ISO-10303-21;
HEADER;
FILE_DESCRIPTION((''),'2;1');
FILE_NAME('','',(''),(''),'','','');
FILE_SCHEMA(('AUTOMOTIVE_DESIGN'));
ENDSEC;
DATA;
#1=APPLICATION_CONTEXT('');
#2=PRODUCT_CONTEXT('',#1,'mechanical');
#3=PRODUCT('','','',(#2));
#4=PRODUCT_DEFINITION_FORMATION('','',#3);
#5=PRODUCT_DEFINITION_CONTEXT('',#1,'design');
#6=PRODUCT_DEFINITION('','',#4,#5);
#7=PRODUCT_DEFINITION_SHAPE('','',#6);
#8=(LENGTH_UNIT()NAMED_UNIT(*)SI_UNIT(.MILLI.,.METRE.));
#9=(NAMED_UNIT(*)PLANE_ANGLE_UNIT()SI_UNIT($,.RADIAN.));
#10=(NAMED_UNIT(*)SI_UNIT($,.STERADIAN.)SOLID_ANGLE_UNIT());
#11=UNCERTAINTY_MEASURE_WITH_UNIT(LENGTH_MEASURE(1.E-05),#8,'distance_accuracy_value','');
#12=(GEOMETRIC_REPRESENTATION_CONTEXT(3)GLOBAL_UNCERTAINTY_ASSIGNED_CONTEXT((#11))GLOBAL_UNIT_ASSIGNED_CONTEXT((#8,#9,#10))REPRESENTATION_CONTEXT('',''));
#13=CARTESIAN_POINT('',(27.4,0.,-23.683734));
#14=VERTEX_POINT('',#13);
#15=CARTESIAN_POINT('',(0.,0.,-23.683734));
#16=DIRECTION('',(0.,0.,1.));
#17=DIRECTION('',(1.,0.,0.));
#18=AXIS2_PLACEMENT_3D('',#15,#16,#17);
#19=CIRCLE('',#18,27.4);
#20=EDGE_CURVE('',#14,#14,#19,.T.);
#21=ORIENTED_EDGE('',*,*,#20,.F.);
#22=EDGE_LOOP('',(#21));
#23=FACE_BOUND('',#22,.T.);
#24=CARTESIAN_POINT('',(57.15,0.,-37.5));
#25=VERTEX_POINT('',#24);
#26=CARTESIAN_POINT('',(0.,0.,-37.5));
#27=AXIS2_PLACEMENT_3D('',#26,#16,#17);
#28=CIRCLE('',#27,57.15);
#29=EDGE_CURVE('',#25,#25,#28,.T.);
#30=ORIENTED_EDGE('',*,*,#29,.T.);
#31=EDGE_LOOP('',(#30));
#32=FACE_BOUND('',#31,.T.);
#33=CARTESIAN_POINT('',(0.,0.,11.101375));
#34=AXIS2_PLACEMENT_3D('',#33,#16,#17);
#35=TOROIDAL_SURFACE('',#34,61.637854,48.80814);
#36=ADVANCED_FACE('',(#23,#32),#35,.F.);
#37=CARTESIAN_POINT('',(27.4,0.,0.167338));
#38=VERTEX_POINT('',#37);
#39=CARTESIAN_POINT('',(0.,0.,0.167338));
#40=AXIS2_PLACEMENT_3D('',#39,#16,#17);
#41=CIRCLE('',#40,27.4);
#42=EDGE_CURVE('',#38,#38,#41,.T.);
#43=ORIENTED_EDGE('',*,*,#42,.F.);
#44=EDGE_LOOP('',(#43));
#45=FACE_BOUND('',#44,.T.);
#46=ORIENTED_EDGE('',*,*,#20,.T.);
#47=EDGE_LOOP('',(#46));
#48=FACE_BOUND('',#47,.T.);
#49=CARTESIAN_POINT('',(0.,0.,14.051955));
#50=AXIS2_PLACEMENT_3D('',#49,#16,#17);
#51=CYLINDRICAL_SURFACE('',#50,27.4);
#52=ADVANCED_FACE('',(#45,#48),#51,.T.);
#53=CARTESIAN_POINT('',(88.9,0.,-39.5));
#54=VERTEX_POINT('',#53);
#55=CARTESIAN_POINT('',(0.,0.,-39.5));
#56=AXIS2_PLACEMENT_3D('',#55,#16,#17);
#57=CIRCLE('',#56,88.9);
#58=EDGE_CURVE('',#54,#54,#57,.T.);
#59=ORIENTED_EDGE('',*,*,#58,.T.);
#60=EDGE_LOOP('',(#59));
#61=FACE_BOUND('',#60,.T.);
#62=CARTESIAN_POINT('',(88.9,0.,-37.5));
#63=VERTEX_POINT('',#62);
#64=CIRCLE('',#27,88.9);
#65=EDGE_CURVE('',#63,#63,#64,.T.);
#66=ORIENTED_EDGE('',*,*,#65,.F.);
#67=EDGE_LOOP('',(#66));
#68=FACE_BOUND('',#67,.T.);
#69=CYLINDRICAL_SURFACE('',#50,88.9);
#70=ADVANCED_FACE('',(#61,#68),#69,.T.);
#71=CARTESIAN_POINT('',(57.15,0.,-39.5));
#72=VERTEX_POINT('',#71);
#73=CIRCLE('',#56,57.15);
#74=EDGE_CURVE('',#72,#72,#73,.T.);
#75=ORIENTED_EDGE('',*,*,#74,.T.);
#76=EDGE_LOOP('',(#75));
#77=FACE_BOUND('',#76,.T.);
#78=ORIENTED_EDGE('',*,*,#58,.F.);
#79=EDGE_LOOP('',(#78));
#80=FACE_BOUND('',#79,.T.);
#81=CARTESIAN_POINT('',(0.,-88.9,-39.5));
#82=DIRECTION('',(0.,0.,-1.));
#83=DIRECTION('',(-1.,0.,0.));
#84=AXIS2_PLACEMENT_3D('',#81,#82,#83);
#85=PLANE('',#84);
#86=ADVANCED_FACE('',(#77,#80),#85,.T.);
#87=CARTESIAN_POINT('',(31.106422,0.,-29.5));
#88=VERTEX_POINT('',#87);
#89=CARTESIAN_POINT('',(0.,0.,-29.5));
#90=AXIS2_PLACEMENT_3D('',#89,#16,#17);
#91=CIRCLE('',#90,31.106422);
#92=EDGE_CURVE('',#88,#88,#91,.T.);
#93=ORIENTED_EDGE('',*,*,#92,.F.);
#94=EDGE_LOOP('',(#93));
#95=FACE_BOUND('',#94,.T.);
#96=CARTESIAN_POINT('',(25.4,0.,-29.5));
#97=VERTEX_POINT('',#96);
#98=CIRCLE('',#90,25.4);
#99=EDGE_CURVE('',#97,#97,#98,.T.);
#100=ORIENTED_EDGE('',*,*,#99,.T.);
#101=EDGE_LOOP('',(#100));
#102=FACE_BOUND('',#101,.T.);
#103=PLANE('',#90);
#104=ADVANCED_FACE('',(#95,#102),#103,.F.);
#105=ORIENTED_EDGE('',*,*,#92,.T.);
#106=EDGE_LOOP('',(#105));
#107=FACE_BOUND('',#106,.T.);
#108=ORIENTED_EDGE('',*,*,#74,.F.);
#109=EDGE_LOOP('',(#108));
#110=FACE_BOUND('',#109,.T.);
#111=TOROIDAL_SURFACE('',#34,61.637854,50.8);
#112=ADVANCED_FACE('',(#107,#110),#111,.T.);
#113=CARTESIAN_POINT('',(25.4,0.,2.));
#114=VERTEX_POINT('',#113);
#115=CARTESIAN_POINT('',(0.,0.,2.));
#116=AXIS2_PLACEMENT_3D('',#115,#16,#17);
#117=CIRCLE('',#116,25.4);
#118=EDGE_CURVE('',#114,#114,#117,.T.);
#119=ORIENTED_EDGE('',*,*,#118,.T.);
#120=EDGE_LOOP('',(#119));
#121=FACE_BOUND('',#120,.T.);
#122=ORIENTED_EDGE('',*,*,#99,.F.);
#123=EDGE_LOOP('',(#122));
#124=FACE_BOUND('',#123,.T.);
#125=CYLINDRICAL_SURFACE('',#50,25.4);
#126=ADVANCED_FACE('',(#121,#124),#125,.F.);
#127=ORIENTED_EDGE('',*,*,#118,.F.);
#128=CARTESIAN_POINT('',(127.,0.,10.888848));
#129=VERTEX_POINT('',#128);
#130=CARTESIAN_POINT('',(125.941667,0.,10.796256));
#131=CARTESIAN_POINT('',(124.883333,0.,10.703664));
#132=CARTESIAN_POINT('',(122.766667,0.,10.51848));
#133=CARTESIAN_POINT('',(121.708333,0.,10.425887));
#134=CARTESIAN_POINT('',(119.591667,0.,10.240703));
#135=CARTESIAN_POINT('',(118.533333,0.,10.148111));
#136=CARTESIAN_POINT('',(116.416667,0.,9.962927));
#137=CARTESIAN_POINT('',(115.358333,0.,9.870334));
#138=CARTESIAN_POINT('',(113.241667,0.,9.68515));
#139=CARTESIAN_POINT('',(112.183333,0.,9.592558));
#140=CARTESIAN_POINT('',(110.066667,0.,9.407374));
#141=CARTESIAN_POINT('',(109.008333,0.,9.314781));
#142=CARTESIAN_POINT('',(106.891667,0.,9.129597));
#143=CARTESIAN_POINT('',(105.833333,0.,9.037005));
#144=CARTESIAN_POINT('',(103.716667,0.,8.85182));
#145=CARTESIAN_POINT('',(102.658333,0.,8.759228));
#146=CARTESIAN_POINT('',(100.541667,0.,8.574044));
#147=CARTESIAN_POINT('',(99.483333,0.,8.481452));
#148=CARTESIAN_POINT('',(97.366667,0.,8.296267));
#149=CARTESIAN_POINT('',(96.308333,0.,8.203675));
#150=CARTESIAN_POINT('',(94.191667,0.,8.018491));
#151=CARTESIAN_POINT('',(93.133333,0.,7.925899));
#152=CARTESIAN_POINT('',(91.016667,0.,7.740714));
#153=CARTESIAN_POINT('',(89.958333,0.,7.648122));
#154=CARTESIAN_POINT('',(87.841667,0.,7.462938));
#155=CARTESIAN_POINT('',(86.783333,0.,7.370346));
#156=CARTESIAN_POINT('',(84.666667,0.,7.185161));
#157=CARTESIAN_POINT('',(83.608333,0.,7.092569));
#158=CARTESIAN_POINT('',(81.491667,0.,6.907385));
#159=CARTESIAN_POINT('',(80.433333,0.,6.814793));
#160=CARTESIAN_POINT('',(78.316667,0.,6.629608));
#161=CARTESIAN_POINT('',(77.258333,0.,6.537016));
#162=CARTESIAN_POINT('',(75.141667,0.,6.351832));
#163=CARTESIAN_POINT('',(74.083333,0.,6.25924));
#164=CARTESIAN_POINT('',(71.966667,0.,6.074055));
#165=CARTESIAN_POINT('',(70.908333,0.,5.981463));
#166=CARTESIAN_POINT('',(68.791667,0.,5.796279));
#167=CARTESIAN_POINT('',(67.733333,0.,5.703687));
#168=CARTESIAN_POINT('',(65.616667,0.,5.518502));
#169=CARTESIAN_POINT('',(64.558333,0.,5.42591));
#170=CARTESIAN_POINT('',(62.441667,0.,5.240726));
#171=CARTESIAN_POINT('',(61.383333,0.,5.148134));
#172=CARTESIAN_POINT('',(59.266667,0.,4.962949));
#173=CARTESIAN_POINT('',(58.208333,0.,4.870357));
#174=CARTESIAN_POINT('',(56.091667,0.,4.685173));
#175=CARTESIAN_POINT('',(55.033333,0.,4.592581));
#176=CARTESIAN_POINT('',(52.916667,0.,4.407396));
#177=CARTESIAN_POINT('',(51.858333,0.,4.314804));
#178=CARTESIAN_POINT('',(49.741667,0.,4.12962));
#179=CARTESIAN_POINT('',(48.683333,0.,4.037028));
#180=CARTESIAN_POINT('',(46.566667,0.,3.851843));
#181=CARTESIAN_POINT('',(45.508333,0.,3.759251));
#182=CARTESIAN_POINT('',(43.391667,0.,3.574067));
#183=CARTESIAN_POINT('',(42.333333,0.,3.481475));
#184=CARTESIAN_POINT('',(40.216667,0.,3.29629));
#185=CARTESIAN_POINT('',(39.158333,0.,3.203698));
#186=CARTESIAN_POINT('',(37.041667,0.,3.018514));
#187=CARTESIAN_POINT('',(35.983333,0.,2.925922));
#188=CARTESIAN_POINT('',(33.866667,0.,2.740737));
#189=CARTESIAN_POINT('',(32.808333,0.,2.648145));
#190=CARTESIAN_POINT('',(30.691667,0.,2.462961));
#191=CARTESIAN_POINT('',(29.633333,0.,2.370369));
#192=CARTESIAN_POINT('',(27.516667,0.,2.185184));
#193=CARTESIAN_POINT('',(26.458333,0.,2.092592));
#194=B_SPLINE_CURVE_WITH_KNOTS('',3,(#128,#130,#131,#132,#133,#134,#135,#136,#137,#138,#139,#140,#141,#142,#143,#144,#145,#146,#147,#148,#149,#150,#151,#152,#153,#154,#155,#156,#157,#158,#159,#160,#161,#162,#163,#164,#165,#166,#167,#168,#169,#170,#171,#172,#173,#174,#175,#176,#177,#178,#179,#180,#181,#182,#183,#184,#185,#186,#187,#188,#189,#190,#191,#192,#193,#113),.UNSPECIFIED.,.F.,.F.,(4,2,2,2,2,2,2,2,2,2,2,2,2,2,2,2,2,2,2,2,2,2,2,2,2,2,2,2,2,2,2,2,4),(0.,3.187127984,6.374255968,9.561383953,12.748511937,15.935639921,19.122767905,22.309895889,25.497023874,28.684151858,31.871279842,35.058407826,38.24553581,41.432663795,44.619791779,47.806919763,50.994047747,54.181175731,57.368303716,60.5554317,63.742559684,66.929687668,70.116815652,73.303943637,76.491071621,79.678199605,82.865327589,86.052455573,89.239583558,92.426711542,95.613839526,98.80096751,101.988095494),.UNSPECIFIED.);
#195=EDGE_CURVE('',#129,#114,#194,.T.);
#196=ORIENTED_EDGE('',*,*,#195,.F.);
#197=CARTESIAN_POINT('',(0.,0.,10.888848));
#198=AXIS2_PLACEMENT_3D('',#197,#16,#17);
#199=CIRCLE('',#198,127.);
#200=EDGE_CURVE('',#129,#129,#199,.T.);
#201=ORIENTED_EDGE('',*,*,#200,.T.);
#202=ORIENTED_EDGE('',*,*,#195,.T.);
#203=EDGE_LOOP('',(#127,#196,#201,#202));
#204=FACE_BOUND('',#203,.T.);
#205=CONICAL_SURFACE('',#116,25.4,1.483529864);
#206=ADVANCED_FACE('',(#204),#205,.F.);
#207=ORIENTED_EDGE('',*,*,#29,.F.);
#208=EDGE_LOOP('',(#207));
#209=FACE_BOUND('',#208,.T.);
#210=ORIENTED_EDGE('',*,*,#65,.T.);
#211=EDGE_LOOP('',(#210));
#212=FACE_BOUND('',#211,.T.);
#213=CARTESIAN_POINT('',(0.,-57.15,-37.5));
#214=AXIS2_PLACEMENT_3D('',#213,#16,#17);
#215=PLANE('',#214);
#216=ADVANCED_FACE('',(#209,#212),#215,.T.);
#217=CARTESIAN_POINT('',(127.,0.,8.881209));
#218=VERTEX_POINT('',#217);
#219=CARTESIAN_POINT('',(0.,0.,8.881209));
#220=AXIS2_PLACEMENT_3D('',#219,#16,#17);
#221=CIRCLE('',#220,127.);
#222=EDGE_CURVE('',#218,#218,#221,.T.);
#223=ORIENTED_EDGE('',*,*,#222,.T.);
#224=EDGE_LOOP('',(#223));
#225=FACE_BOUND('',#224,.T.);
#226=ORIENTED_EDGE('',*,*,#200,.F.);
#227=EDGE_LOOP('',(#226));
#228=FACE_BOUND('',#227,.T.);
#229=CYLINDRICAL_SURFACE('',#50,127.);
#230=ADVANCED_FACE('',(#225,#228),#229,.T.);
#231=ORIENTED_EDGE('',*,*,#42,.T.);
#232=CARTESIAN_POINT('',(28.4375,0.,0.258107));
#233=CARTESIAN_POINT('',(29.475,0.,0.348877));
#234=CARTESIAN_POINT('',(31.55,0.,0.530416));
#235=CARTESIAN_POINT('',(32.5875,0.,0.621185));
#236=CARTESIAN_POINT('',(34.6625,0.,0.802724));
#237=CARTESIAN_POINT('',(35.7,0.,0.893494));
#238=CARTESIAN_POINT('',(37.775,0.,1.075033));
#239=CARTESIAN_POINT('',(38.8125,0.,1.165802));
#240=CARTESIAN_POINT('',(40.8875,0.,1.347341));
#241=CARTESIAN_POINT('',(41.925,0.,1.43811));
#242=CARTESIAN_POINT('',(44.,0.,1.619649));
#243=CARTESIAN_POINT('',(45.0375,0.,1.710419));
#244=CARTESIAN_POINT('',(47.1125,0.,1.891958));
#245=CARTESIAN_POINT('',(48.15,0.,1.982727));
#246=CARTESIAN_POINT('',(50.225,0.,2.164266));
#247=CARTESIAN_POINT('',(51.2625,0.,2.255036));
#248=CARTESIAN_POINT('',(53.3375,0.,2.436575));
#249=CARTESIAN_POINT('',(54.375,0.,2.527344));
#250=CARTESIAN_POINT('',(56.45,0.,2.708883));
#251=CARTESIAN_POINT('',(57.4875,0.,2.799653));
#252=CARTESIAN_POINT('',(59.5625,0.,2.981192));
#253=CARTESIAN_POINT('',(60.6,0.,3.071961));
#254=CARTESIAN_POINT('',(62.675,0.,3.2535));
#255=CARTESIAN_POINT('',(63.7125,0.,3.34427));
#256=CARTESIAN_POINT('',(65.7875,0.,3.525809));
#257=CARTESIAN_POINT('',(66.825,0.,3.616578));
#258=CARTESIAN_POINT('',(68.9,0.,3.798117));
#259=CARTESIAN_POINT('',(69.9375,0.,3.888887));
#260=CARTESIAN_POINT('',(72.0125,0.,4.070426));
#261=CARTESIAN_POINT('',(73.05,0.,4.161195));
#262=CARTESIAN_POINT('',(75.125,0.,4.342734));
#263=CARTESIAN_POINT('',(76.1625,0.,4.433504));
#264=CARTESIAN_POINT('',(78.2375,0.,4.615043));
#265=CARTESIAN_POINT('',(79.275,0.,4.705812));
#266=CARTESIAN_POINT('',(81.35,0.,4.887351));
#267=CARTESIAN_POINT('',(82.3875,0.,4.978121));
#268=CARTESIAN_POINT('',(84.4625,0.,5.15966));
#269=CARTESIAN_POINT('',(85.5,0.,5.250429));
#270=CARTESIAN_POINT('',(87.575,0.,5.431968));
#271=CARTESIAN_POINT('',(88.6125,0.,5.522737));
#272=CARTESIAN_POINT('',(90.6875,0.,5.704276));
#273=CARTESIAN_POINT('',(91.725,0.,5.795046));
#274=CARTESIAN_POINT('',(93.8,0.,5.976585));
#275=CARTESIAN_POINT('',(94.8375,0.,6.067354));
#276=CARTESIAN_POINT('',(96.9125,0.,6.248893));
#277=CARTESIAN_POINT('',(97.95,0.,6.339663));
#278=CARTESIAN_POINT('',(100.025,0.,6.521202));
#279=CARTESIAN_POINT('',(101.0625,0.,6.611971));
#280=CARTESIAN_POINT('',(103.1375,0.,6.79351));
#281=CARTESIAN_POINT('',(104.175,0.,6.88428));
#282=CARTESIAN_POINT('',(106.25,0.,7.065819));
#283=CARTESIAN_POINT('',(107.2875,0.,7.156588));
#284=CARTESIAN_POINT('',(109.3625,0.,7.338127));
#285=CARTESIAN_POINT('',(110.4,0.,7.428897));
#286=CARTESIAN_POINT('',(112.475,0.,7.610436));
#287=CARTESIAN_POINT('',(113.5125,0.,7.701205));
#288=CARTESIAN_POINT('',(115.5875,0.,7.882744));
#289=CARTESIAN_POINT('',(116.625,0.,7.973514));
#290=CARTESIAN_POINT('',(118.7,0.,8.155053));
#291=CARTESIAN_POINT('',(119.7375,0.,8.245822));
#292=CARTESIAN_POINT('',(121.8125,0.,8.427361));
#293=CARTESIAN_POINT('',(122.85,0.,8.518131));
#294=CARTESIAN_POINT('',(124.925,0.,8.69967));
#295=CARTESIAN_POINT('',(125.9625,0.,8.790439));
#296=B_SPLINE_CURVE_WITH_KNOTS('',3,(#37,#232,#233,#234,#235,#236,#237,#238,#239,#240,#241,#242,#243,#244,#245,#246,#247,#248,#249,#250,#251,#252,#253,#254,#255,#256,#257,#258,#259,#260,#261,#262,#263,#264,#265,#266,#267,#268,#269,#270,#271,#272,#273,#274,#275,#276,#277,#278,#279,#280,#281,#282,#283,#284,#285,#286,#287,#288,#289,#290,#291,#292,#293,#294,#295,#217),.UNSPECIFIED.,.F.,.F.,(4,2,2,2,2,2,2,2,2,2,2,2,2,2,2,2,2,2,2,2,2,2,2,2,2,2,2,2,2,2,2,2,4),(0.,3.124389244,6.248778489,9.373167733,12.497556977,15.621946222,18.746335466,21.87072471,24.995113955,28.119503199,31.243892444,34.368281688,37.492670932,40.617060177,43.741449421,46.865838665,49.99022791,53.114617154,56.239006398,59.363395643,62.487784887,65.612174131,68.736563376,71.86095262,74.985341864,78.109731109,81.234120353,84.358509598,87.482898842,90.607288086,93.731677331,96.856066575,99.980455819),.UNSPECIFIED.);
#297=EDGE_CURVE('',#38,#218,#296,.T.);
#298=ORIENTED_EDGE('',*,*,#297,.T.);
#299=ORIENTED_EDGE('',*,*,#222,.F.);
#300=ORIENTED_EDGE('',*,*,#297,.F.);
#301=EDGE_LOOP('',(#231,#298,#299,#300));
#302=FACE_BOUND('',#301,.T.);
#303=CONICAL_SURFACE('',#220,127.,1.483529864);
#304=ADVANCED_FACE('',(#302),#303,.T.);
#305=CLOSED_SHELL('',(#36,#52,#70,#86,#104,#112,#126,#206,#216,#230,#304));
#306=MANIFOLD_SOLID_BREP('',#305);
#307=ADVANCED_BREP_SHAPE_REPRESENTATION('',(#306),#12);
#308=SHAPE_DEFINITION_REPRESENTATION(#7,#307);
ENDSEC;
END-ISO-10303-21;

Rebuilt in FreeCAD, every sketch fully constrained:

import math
import FreeCAD as App
import Part
import Sketcher
from FreeCAD import Vector
Q = App.Units.Quantity

doc = App.newDocument("Part")
params = doc.addObject("Spreadsheet::Sheet", "Params")
for row, (alias, value) in enumerate([
    ("sketch1_radius", "50.8 mm"),
    ("sketch1_height", "2 mm"),
    ("sketch1_height2", "31.5 mm"),
    ("sketch1_width", "31.75 mm"),
    ("revolution_angle", "360 deg"),
], start=1):
    params.set(f"A{row}", alias)
    params.set(f"B{row}", "=" + value)
    params.setAlias(f"B{row}", alias)

body = doc.addObject("PartDesign::Body", "Body")

sketch1 = doc.addObject("Sketcher::SketchObject", "Sketch")
body.addObject(sketch1)
sketch1.AttachmentSupport = (doc.YZ_Plane, [""])
sketch1.MapMode = "FlatFace"
sketch1.addGeometry(Part.ArcOfCircle(Part.Circle(Vector(-61.6, 11.1, 0), Vector(0, 0, 1), 50.8), math.radians(-85), math.radians(-53)), False)
sketch1.addGeometry(Part.LineSegment(Vector(-31.1, -29.5, 0), Vector(-25.4, -29.5, 0)), False)
sketch1.addGeometry(Part.LineSegment(Vector(-25.4, -29.5, 0), Vector(-25.4, 2, 0)), False)
sketch1.addGeometry(Part.LineSegment(Vector(-25.4, 2, 0), Vector(-127, 10.9, 0)), False)
sketch1.addGeometry(Part.LineSegment(Vector(-127, 10.9, 0), Vector(-127, 8.9, 0)), False)
sketch1.addGeometry(Part.LineSegment(Vector(-127, 8.9, 0), Vector(-27.4, 0.2, 0)), False)
sketch1.addGeometry(Part.LineSegment(Vector(-27.4, 0.2, 0), Vector(-27.4, -23.7, 0)), False)
sketch1.addGeometry(Part.ArcOfCircle(Part.Circle(Vector(-61.6, 11.1, 0), Vector(0, 0, 1), 48.8), math.radians(-85), math.radians(-45)), False)
sketch1.addGeometry(Part.LineSegment(Vector(-57.1, -37.5, 0), Vector(-88.9, -37.5, 0)), False)
sketch1.addGeometry(Part.LineSegment(Vector(-88.9, -37.5, 0), Vector(-88.9, -39.5, 0)), False)
sketch1.addGeometry(Part.LineSegment(Vector(-88.9, -39.5, 0), Vector(-57.1, -39.5, 0)), False)
sketch1.addConstraint(Sketcher.Constraint("Coincident", 0, 2, 1, 1))
sketch1.addConstraint(Sketcher.Constraint("Coincident", 1, 2, 2, 1))
sketch1.addConstraint(Sketcher.Constraint("Coincident", 2, 2, 3, 1))
sketch1.addConstraint(Sketcher.Constraint("Coincident", 3, 2, 4, 1))
sketch1.addConstraint(Sketcher.Constraint("Coincident", 4, 2, 5, 1))
sketch1.addConstraint(Sketcher.Constraint("Coincident", 5, 2, 6, 1))
sketch1.addConstraint(Sketcher.Constraint("Coincident", 6, 2, 7, 2))
sketch1.addConstraint(Sketcher.Constraint("Coincident", 7, 1, 8, 1))
sketch1.addConstraint(Sketcher.Constraint("Coincident", 8, 2, 9, 1))
sketch1.addConstraint(Sketcher.Constraint("Coincident", 9, 2, 10, 1))
sketch1.addConstraint(Sketcher.Constraint("Coincident", 10, 2, 0, 1))
sketch1.addConstraint(Sketcher.Constraint("Horizontal", 1))
sketch1.addConstraint(Sketcher.Constraint("Vertical", 2))
sketch1.addConstraint(Sketcher.Constraint("Vertical", 4))
sketch1.addConstraint(Sketcher.Constraint("Vertical", 6))
sketch1.addConstraint(Sketcher.Constraint("Horizontal", 8))
sketch1.addConstraint(Sketcher.Constraint("Vertical", 9))
sketch1.addConstraint(Sketcher.Constraint("Horizontal", 10))
sketch1.addConstraint(Sketcher.Constraint("Coincident", 7, 3, 0, 3))
sketch1.addConstraint(Sketcher.Constraint("Parallel", 3, 5))
sketch1.addConstraint(Sketcher.Constraint("Vertical", 7, 1, 10, 2))
sketch1.addConstraint(Sketcher.Constraint("Radius", 0, Q("50.8 mm")))
sketch1.addConstraint(Sketcher.Constraint("DistanceY", 9, 2, 9, 1, Q("2 mm")))
sketch1.addConstraint(Sketcher.Constraint("Angle", 3, Q("175 deg")))
sketch1.addConstraint(Sketcher.Constraint("DistanceY", 2, 1, 2, 2, Q("31.5 mm")))
sketch1.addConstraint(Sketcher.Constraint("DistanceY", -1, 1, 2, 2, Q("2 mm")))
sketch1.addConstraint(Sketcher.Constraint("DistanceX", 3, 2, -1, 1, Q("127 mm")))
sketch1.addConstraint(Sketcher.Constraint("DistanceX", 5, 2, 2, 2, Q("2 mm")))
sketch1.addConstraint(Sketcher.Constraint("DistanceY", 7, 1, 0, 2, Q("8 mm")))
sketch1.addConstraint(Sketcher.Constraint("DistanceX", 8, 2, 8, 1, Q("31.75 mm")))
sketch1.addConstraint(Sketcher.Constraint("DistanceX", 1, 2, -1, 1, Q("25.4 mm")))
sketch1.addConstraint(Sketcher.Constraint("DistanceX", 8, 2, -1, 1, Q("88.9 mm")))
sketch1.addConstraint(Sketcher.Constraint("DistanceY", 4, 2, 4, 1, Q("2.00764 mm")))
sketch1.addConstraint(Sketcher.Constraint("DistanceY", 6, 2, 6, 1, Q("23.851072 mm")))
sketch1.setExpression("Constraints[21]", "Params.sketch1_radius")
sketch1.setExpression("Constraints[22]", "Params.sketch1_height")
sketch1.setExpression("Constraints[24]", "Params.sketch1_height2")
sketch1.setExpression("Constraints[29]", "Params.sketch1_width")
revolution = doc.addObject("PartDesign::Revolution", "Revolution")
body.addObject(revolution)
revolution.Profile = sketch1
revolution.ReferenceAxis = (sketch1, ["V_Axis"])
revolution.setExpression("Angle", "Params.revolution_angle")

doc.recompute()
